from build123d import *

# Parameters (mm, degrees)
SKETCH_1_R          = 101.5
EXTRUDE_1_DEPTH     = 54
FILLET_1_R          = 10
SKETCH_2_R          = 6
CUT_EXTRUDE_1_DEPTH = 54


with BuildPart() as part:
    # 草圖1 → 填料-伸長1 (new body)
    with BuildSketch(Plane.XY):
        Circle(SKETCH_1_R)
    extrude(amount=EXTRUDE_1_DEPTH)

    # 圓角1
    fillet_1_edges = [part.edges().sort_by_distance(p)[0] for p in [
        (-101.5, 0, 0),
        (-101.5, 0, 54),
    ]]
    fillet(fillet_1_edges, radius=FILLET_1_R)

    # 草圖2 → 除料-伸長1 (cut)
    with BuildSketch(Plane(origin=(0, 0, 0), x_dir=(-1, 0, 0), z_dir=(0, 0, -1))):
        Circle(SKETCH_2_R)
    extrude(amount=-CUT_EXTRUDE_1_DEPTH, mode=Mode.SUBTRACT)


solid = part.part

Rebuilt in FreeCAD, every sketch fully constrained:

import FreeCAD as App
import Part
import Sketcher
from FreeCAD import Vector
Q = App.Units.Quantity


def edges_at(feature, points):
    """Names of the edges that pass closest to the given points."""
    edges = feature.Shape.Edges
    near = lambda p: min(range(len(edges)), key=lambda i: edges[i].distToShape(Part.Vertex(*p))[0])
    return sorted({f"Edge{near(p) + 1}" for p in points})

doc = App.newDocument("Part")
body = doc.addObject("PartDesign::Body", "Body")

sketch1 = doc.addObject("Sketcher::SketchObject", "Sketch")
body.addObject(sketch1)
sketch1.AttachmentSupport = (doc.XY_Plane, [""])
sketch1.MapMode = "FlatFace"
sketch1.addGeometry(Part.Circle(Vector(0, 0, 0), Vector(0, 0, 1), 101.5), False)
sketch1.addConstraint(Sketcher.Constraint("Coincident", 0, 3, -1, 1))
sketch1.addConstraint(Sketcher.Constraint("Diameter", 0, Q("203 mm")))
pad1 = doc.addObject("PartDesign::Pad", "Pad")
body.addObject(pad1)
pad1.Profile = sketch1
pad1.Length = 54
doc.recompute()

fillet = doc.addObject("PartDesign::Fillet", "Fillet")
body.addObject(fillet)
fillet.Base = (pad1, edges_at(pad1, [(-101.5, 0, 0), (-101.5, 0, 54)]))
fillet.Radius = 10

sketch2 = doc.addObject("Sketcher::SketchObject", "Sketch001")
body.addObject(sketch2)
sketch2.AttachmentSupport = (doc.XY_Plane, [""])
sketch2.MapMode = "FlatFace"
sketch2.addGeometry(Part.Circle(Vector(0, 0, 0), Vector(0, 0, 1), 6), False)
sketch2.addConstraint(Sketcher.Constraint("Coincident", 0, 3, -1, 1))
sketch2.addConstraint(Sketcher.Constraint("Diameter", 0, Q("12 mm")))
pocket1 = doc.addObject("PartDesign::Pocket", "Pocket")
body.addObject(pocket1)
pocket1.Profile = sketch2
pocket1.Length = 54
pocket1.Reversed = True

doc.recompute()
